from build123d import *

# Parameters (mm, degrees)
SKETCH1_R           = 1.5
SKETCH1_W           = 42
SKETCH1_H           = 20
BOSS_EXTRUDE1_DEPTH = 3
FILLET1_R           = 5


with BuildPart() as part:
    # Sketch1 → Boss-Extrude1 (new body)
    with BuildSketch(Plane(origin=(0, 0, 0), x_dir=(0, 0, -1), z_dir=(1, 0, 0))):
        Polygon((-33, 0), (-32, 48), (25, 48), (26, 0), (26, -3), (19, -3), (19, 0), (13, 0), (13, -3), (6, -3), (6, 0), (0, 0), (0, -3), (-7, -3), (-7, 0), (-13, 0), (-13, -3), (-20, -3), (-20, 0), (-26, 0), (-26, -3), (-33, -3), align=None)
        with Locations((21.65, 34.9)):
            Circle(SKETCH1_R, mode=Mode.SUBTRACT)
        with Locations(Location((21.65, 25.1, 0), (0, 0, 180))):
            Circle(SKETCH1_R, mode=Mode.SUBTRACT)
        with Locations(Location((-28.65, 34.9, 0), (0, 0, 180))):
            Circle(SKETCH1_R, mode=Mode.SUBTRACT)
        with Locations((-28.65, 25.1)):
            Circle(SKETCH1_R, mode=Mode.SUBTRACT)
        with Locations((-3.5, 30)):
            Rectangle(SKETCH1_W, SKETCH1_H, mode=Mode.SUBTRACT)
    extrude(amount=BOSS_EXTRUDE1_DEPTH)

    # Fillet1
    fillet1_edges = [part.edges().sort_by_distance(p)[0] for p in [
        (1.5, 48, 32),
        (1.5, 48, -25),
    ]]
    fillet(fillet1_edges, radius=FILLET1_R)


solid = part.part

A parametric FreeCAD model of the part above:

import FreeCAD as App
import Part
import Sketcher
from FreeCAD import Vector
Q = App.Units.Quantity


def edges_at(feature, points):
    """Names of the edges that pass closest to the given points."""
    edges = feature.Shape.Edges
    near = lambda p: min(range(len(edges)), key=lambda i: edges[i].distToShape(Part.Vertex(*p))[0])
    return sorted({f"Edge{near(p) + 1}" for p in points})


def add_polygon(sketch, points):
    """Adds a closed chain of lines whose ends are joined by coincident constraints."""
    first, n = sketch.GeometryCount, len(points)
    for a, b in zip(points, points[1:] + points[:1]):
        sketch.addGeometry(Part.LineSegment(App.Vector(*a, 0), App.Vector(*b, 0)), False)
    for i in range(n):
        sketch.addConstraint(Sketcher.Constraint("Coincident", first + i, 2, first + (i + 1) % n, 1))

doc = App.newDocument("Part")
body = doc.addObject("PartDesign::Body", "Body")

sketch1 = body.newObject("Sketcher::SketchObject", "Sketch")
sketch1.AttachmentSupport = (doc.getObject("YZ_Plane"), [""])
sketch1.MapMode = "FlatFace"
add_polygon(sketch1, [(48, 32), (0, 33), (-3, 33), (-3, 26), (0, 26), (0, 20), (-3, 20), (-3, 13), (0, 13), (0, 7), (-3, 7), (-3, 0), (0, 0), (0, -6), (-3, -6), (-3, -13), (0, -13), (0, -19), (-3, -19), (-3, -26), (0, -26), (48, -25)])
sketch1.addGeometry(Part.Circle(Vector(25.1, -21.6, 0), Vector(0, 0, 1), 1.5), False)
sketch1.addGeometry(Part.Circle(Vector(25.1, 28.6, 0), Vector(0, 0, 1), 1.5), False)
sketch1.addGeometry(Part.Circle(Vector(34.9, -21.6, 0), Vector(0, 0, 1), 1.5), False)
add_polygon(sketch1, [(20, 24.5), (40, 24.5), (40, -17.5), (20, -17.5)])
sketch1.addGeometry(Part.Circle(Vector(34.9, 28.6, 0), Vector(0, 0, 1), 1.5), False)
sketch1.addConstraint([
    Sketcher.Constraint("Horizontal", 1),
    Sketcher.Constraint("Vertical", 2),
    Sketcher.Constraint("Horizontal", 3),
    Sketcher.Constraint("Vertical", 4),
    Sketcher.Constraint("Horizontal", 5),
    Sketcher.Constraint("Vertical", 6),
    Sketcher.Constraint("Horizontal", 7),
    Sketcher.Constraint("Vertical", 8),
    Sketcher.Constraint("Horizontal", 9),
    Sketcher.Constraint("Vertical", 10),
    Sketcher.Constraint("Horizontal", 11),
    Sketcher.Constraint("Vertical", 12),
    Sketcher.Constraint("Horizontal", 13),
    Sketcher.Constraint("Vertical", 14),
    Sketcher.Constraint("Horizontal", 15),
    Sketcher.Constraint("Vertical", 16),
    Sketcher.Constraint("Horizontal", 17),
    Sketcher.Constraint("Vertical", 18),
    Sketcher.Constraint("Horizontal", 19),
    Sketcher.Constraint("Vertical", 21),
    Sketcher.Constraint("Horizontal", 25),
    Sketcher.Constraint("Vertical", 26),
    Sketcher.Constraint("Horizontal", 27),
    Sketcher.Constraint("Vertical", 28),
    Sketcher.Constraint("Coincident", 11, 2, -1, 1),
    Sketcher.Constraint("Equal", 22, 23),
    Sketcher.Constraint("Equal", 23, 24),
    Sketcher.Constraint("Equal", 24, 29),
    Sketcher.Constraint("Symmetric", 7, 2, 15, 2, -1, 1),
    Sketcher.Constraint("Symmetric", 3, 2, 19, 2, -1, 1),
    Sketcher.Constraint("PointOnObject", 0, 2, -2),
    Sketcher.Constraint("PointOnObject", 3, 2, -2),
    Sketcher.Constraint("PointOnObject", 7, 2, -2),
    Sketcher.Constraint("Horizontal", 22, 3, 24, 3),
    Sketcher.Constraint("Horizontal", 23, 3, 29, 3),
    Sketcher.Constraint("Vertical", 22, 3, 23, 3),
    Sketcher.Constraint("Vertical", 24, 3, 29, 3),
    Sketcher.Constraint("Vertical", 2, 2, 5, 2),
    Sketcher.Constraint("Vertical", 6, 2, 9, 2),
    Sketcher.Constraint("Vertical", 10, 2, 13, 2),
    Sketcher.Constraint("Vertical", 14, 2, 17, 2),
    Sketcher.Constraint("Equal", 2, 6),
    Sketcher.Constraint("Equal", 4, 8),
    Sketcher.Constraint("Equal", 6, 10),
    Sketcher.Constraint("Equal", 8, 12),
    Sketcher.Constraint("Equal", 12, 16),
    Sketcher.Constraint("Equal", 0, 20),
    Sketcher.Constraint("Diameter", 22, Q("3 mm")),
    Sketcher.Constraint("DistanceX", 1, 2, 1, 1, Q("3 mm")),
    Sketcher.Constraint("DistanceX", 25, 1, 25, 2, Q("20 mm")),
    Sketcher.Constraint("DistanceY", 2, 2, 2, 1, Q("7 mm")),
    Sketcher.Constraint("DistanceY", 4, 2, 4, 1, Q("6 mm")),
    Sketcher.Constraint("DistanceY", 21, 1, 21, 2, Q("57 mm")),
    Sketcher.Constraint("DistanceY", 26, 2, 26, 1, Q("42 mm")),
    Sketcher.Constraint("DistanceX", -1, 1, 20, 2, Q("48 mm")),
    Sketcher.Constraint("DistanceX", -1, 1, 25, 2, Q("40 mm")),
    Sketcher.Constraint("DistanceX", -1, 1, 22, 3, Q("25.1 mm")),
    Sketcher.Constraint("DistanceX", -1, 1, 24, 3, Q("34.9 mm")),
    Sketcher.Constraint("DistanceY", -1, 1, 25, 2, Q("24.5 mm")),
    Sketcher.Constraint("DistanceY", 22, 3, 23, 3, Q("50.3 mm")),
    Sketcher.Constraint("DistanceY", 22, 3, -1, 1, Q("21.65 mm")),
])
pad1 = body.newObject("PartDesign::Pad", "Pad")
pad1.Profile = sketch1
pad1.Length = 3
doc.recompute()

fillet = body.newObject("PartDesign::Fillet", "Fillet")
fillet.Base = (pad1, edges_at(pad1, [(1.5, 48, 32), (1.5, 48, -25)]))
fillet.Radius = 5

doc.recompute()
